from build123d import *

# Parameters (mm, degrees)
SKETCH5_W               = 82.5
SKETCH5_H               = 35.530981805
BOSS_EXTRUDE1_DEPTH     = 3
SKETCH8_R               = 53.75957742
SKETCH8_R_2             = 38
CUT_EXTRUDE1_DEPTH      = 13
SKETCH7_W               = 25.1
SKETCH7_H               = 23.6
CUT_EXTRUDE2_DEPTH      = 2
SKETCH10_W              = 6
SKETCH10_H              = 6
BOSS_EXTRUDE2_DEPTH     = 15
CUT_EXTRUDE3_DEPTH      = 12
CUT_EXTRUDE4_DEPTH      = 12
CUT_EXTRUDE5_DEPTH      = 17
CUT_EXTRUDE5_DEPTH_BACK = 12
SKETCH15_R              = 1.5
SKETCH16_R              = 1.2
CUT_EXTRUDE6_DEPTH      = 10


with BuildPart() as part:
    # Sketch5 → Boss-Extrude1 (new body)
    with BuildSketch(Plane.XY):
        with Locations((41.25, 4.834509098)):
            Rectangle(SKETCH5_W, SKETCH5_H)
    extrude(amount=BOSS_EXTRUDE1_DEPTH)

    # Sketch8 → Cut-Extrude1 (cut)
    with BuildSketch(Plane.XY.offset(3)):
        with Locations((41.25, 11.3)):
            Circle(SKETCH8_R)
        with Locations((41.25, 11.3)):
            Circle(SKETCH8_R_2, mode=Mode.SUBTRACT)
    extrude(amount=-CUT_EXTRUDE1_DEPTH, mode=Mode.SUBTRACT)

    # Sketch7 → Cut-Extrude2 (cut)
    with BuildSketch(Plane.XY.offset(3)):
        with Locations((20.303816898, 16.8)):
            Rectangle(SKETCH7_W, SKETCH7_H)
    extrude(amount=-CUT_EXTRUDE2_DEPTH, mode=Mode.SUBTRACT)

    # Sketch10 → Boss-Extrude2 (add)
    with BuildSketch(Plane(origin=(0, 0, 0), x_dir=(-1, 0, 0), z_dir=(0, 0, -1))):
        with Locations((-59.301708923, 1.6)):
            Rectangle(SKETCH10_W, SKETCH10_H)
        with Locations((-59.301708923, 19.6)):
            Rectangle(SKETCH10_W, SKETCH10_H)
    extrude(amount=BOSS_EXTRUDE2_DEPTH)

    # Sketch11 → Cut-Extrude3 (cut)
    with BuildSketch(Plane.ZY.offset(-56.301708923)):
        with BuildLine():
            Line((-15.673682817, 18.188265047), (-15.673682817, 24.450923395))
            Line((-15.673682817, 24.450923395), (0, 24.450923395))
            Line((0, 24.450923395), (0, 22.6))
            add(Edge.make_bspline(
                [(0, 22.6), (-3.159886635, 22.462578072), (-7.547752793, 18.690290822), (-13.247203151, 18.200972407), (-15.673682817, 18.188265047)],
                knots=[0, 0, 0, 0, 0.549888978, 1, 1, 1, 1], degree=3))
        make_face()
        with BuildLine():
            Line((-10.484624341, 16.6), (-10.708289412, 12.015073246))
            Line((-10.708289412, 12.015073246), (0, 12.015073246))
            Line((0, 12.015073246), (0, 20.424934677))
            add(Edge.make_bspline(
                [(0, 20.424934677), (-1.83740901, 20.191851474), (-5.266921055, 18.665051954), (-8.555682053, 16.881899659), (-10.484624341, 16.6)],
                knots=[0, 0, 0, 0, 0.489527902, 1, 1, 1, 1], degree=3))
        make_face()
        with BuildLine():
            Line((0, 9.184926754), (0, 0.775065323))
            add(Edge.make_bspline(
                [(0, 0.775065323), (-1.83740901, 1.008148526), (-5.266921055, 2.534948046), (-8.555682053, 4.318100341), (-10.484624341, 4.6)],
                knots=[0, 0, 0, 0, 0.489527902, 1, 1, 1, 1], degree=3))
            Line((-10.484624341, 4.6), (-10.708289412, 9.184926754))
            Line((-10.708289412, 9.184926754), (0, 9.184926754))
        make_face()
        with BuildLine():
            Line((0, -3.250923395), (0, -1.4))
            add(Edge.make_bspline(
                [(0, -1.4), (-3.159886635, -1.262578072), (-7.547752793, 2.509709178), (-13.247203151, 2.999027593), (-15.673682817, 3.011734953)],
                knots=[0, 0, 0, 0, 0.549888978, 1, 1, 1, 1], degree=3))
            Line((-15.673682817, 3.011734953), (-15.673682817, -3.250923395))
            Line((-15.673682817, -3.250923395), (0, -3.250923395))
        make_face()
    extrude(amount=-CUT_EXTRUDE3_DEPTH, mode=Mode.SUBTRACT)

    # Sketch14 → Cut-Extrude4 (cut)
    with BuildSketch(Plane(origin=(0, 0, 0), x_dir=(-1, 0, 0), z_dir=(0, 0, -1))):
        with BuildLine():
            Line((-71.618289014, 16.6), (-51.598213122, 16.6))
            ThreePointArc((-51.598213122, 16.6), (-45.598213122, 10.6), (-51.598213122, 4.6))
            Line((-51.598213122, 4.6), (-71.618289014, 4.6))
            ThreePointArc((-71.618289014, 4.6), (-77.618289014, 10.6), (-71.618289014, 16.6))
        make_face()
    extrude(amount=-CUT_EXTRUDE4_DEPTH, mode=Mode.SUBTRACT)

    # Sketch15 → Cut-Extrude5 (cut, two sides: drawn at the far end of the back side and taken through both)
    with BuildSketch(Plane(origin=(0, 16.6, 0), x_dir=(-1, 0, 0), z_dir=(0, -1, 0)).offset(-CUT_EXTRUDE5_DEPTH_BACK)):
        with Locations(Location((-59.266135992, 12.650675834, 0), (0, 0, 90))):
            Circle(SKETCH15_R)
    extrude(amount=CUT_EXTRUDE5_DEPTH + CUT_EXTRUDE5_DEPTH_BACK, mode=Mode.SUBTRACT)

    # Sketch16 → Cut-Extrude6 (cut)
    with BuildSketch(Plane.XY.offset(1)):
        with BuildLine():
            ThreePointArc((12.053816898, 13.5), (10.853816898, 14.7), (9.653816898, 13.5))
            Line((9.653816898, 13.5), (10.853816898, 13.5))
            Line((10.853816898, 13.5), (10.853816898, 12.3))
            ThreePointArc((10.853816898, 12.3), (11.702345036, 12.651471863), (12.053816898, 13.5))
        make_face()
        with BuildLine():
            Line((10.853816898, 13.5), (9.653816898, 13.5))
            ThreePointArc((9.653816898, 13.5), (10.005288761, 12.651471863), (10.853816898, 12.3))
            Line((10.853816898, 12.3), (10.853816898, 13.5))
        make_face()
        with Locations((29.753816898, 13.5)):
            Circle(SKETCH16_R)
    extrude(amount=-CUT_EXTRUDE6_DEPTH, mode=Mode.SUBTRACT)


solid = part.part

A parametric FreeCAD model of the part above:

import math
import FreeCAD as App
import Part
import Sketcher
Q = App.Units.Quantity


def add_polygon(sketch, points):
    """Adds a closed chain of lines whose ends are joined by coincident constraints."""
    first, n = sketch.GeometryCount, len(points)
    for a, b in zip(points, points[1:] + points[:1]):
        sketch.addGeometry(Part.LineSegment(App.Vector(*a, 0), App.Vector(*b, 0)), False)
    for i in range(n):
        sketch.addConstraint(Sketcher.Constraint("Coincident", first + i, 2, first + (i + 1) % n, 1))

doc = App.newDocument("Part")
body = doc.addObject("PartDesign::Body", "Body")

# Sketch on XY plane
sketch1 = body.newObject("Sketcher::SketchObject", "Sketch")
sketch1.AttachmentSupport = (doc.getObject("XY_Plane"), [""])
sketch1.MapMode = "FlatFace"
add_polygon(sketch1, [(0, 22.6), (0, -12.930982), (82.5, -12.930982), (82.5, 22.6)])  # lines 0-3
sketch1.addConstraint(Sketcher.Constraint("Vertical", 0))
sketch1.addConstraint(Sketcher.Constraint("Horizontal", 1))
sketch1.addConstraint(Sketcher.Constraint("Vertical", 2))
sketch1.addConstraint(Sketcher.Constraint("Horizontal", 3))
sketch1.addConstraint(Sketcher.Constraint("PointOnObject", 0, 2, -2))
sketch1.addConstraint(Sketcher.Constraint("DistanceX", 1, 1, 1, 2, Q("82.5 mm")))
sketch1.addConstraint(Sketcher.Constraint("DistanceY", -1, 1, 2, 2, Q("22.6 mm")))
sketch1.addConstraint(Sketcher.Constraint("DistanceY", 0, 2, 0, 1, Q("35.530982 mm")))
pad1 = body.newObject("PartDesign::Pad", "Pad")
pad1.Profile = sketch1
pad1.Length = 3

# Sketch on XY plane
sketch2 = body.newObject("Sketcher::SketchObject", "Sketch001")
sketch2.AttachmentSupport = (doc.getObject("XY_Plane"), [""])
sketch2.MapMode = "FlatFace"
sketch2.AttachmentOffset = App.Placement(App.Vector(0, 0, 3), App.Rotation())
sketch2.addGeometry(Part.Circle(App.Vector(41.25, 11.3, 0), App.Vector(0, 0, 1), 53.759577), False)
sketch2.addGeometry(Part.Circle(App.Vector(41.25, 11.3, 0), App.Vector(0, 0, 1), 38), False)
sketch2.addConstraint(Sketcher.Constraint("Coincident", 1, 3, 0, 3))
sketch2.addConstraint(Sketcher.Constraint("Diameter", 1, Q("76 mm")))
sketch2.addConstraint(Sketcher.Constraint("DistanceY", -1, 1, 0, 3, Q("11.3 mm")))
sketch2.addConstraint(Sketcher.Constraint("DistanceX", -1, 1, 0, 3, Q("41.25 mm")))
sketch2.addConstraint(Sketcher.Constraint("Diameter", 0, Q("107.519155 mm")))
pocket1 = body.newObject("PartDesign::Pocket", "Pocket")
pocket1.Profile = sketch2
pocket1.Length = 13

# Sketch on XY plane
sketch3 = body.newObject("Sketcher::SketchObject", "Sketch002")
sketch3.AttachmentSupport = (doc.getObject("XY_Plane"), [""])
sketch3.MapMode = "FlatFace"
sketch3.AttachmentOffset = App.Placement(App.Vector(0, 0, 3), App.Rotation())
add_polygon(sketch3, [(7.753817, 28.6), (7.753817, 5), (32.853817, 5), (32.853817, 28.6)])  # lines 0-3
sketch3.addConstraint(Sketcher.Constraint("Vertical", 0))
sketch3.addConstraint(Sketcher.Constraint("Horizontal", 1))
sketch3.addConstraint(Sketcher.Constraint("Vertical", 2))
sketch3.addConstraint(Sketcher.Constraint("Horizontal", 3))
sketch3.addConstraint(Sketcher.Constraint("DistanceX", 1, 1, 1, 2, Q("25.1 mm")))
sketch3.addConstraint(Sketcher.Constraint("DistanceY", 0, 2, 0, 1, Q("23.6 mm")))
sketch3.addConstraint(Sketcher.Constraint("DistanceY", -1, 1, 0, 2, Q("5 mm")))
sketch3.addConstraint(Sketcher.Constraint("DistanceX", -1, 1, 0, 2, Q("7.753817 mm")))
pocket2 = body.newObject("PartDesign::Pocket", "Pocket001")
pocket2.Profile = sketch3
pocket2.Length = 2

# Sketch on XY plane
sketch4 = body.newObject("Sketcher::SketchObject", "Sketch003")
sketch4.AttachmentSupport = (doc.getObject("XY_Plane"), [""])
sketch4.MapMode = "FlatFace"
add_polygon(sketch4, [(62.301709, 4.6), (62.301709, -1.4), (56.301709, -1.4), (56.301709, 4.6)])  # lines 0-3
add_polygon(sketch4, [(62.301709, 22.6), (62.301709, 16.6), (56.301709, 16.6), (56.301709, 22.6)])  # lines 4-7
sketch4.addConstraint(Sketcher.Constraint("Vertical", 0))
sketch4.addConstraint(Sketcher.Constraint("Horizontal", 1))
sketch4.addConstraint(Sketcher.Constraint("Vertical", 2))
sketch4.addConstraint(Sketcher.Constraint("Horizontal", 3))
sketch4.addConstraint(Sketcher.Constraint("Vertical", 4))
sketch4.addConstraint(Sketcher.Constraint("Horizontal", 5))
sketch4.addConstraint(Sketcher.Constraint("Vertical", 6))
sketch4.addConstraint(Sketcher.Constraint("Horizontal", 7))
sketch4.addConstraint(Sketcher.Constraint("Vertical", 3, 2, 4, 2))
sketch4.addConstraint(Sketcher.Constraint("Vertical", 2, 2, 5, 2))
sketch4.addConstraint(Sketcher.Constraint("Equal", 7, 0))
sketch4.addConstraint(Sketcher.Constraint("Equal", 2, 4))
sketch4.addConstraint(Sketcher.Constraint("DistanceX", 1, 2, 1, 1, Q("6 mm")))
sketch4.addConstraint(Sketcher.Constraint("DistanceY", 3, 2, 4, 2, Q("12 mm")))
sketch4.addConstraint(Sketcher.Constraint("DistanceY", 0, 2, -1, 1, Q("1.4 mm")))
sketch4.addConstraint(Sketcher.Constraint("DistanceX", -1, 1, 0, 2, Q("62.301709 mm")))
pad2 = body.newObject("PartDesign::Pad", "Pad001")
pad2.Profile = sketch4
pad2.Length = 15
pad2.Reversed = True

# Sketch on YZ plane
sketch5 = body.newObject("Sketcher::SketchObject", "Sketch004")
sketch5.AttachmentSupport = (doc.getObject("YZ_Plane"), [""])
sketch5.MapMode = "FlatFace"
sketch5.AttachmentOffset = App.Placement(App.Vector(0, 0, 56.301709), App.Rotation())
sketch5.addGeometry(Part.LineSegment(App.Vector(24.450923, -15.673683, 0), App.Vector(18.188265, -15.673683, 0)), False)
sketch5.addGeometry(Part.BSplineCurve([App.Vector(22.6, 0, 0), App.Vector(22.462578, -3.159887, 0), App.Vector(18.690291, -7.547753, 0), App.Vector(18.200972, -13.247203, 0), App.Vector(18.188265, -15.673683, 0)], [4, 1, 4], [0, 0.549888978, 1], False, 3, [1, 1, 1, 1, 1], False), False)
sketch5.addGeometry(Part.LineSegment(App.Vector(22.6, 0, 0), App.Vector(24.450923, 0, 0)), False)
sketch5.addGeometry(Part.LineSegment(App.Vector(24.450923, 0, 0), App.Vector(24.450923, -15.673683, 0)), False)
sketch5.addGeometry(Part.LineSegment(App.Vector(16.6, -10.484624, 0), App.Vector(12.015073, -10.708289, 0)), False)
sketch5.addGeometry(Part.LineSegment(App.Vector(12.015073, -10.708289, 0), App.Vector(12.015073, 0, 0)), False)
sketch5.addGeometry(Part.LineSegment(App.Vector(12.015073, 0, 0), App.Vector(20.424935, 0, 0)), False)
sketch5.addGeometry(Part.BSplineCurve([App.Vector(20.424935, 0, 0), App.Vector(20.191851, -1.837409, 0), App.Vector(18.665052, -5.266921, 0), App.Vector(16.8819, -8.555682, 0), App.Vector(16.6, -10.484624, 0)], [4, 1, 4], [0, 0.489527902, 1], False, 3, [1, 1, 1, 1, 1], False), False)
sketch5.addGeometry(Part.LineSegment(App.Vector(0.775065, 0, 0), App.Vector(9.184927, 0, 0)), False)
sketch5.addGeometry(Part.LineSegment(App.Vector(9.184927, 0, 0), App.Vector(9.184927, -10.708289, 0)), False)
sketch5.addGeometry(Part.LineSegment(App.Vector(9.184927, -10.708289, 0), App.Vector(4.6, -10.484624, 0)), False)
sketch5.addGeometry(Part.BSplineCurve([App.Vector(0.775065, 0, 0), App.Vector(1.008149, -1.837409, 0), App.Vector(2.534948, -5.266921, 0), App.Vector(4.3181, -8.555682, 0), App.Vector(4.6, -10.484624, 0)], [4, 1, 4], [0, 0.489527902, 1], False, 3, [1, 1, 1, 1, 1], False), False)
sketch5.addGeometry(Part.LineSegment(App.Vector(-3.250923, 0, 0), App.Vector(-1.4, 0, 0)), False)
sketch5.addGeometry(Part.BSplineCurve([App.Vector(-1.4, 0, 0), App.Vector(-1.262578, -3.159887, 0), App.Vector(2.509709, -7.547753, 0), App.Vector(2.999028, -13.247203, 0), App.Vector(3.011735, -15.673683, 0)], [4, 1, 4], [0, 0.549888978, 1], False, 3, [1, 1, 1, 1, 1], False), False)
sketch5.addGeometry(Part.LineSegment(App.Vector(3.011735, -15.673683, 0), App.Vector(-3.250923, -15.673683, 0)), False)
sketch5.addGeometry(Part.LineSegment(App.Vector(-3.250923, -15.673683, 0), App.Vector(-3.250923, 0, 0)), False)
sketch5.addConstraint(Sketcher.Constraint("Block", 1))
sketch5.addConstraint(Sketcher.Constraint("Block", 7))
sketch5.addConstraint(Sketcher.Constraint("Block", 11))
sketch5.addConstraint(Sketcher.Constraint("Block", 13))
sketch5.addConstraint(Sketcher.Constraint("Coincident", 0, 2, 1, 2))
sketch5.addConstraint(Sketcher.Constraint("Coincident", 1, 1, 2, 1))
sketch5.addConstraint(Sketcher.Constraint("Coincident", 2, 2, 3, 1))
sketch5.addConstraint(Sketcher.Constraint("Coincident", 3, 2, 0, 1))
sketch5.addConstraint(Sketcher.Constraint("Coincident", 4, 2, 5, 1))
sketch5.addConstraint(Sketcher.Constraint("Coincident", 5, 2, 6, 1))
sketch5.addConstraint(Sketcher.Constraint("Coincident", 6, 2, 7, 1))
sketch5.addConstraint(Sketcher.Constraint("Coincident", 7, 2, 4, 1))
sketch5.addConstraint(Sketcher.Constraint("Coincident", 8, 2, 9, 1))
sketch5.addConstraint(Sketcher.Constraint("Coincident", 9, 2, 10, 1))
sketch5.addConstraint(Sketcher.Constraint("Coincident", 10, 2, 11, 2))
sketch5.addConstraint(Sketcher.Constraint("Coincident", 11, 1, 8, 1))
sketch5.addConstraint(Sketcher.Constraint("Coincident", 12, 2, 13, 1))
sketch5.addConstraint(Sketcher.Constraint("Coincident", 13, 2, 14, 1))
sketch5.addConstraint(Sketcher.Constraint("Coincident", 14, 2, 15, 1))
sketch5.addConstraint(Sketcher.Constraint("Coincident", 15, 2, 12, 1))
sketch5.addConstraint(Sketcher.Constraint("Horizontal", 0))
sketch5.addConstraint(Sketcher.Constraint("Horizontal", 2))
sketch5.addConstraint(Sketcher.Constraint("Vertical", 3))
sketch5.addConstraint(Sketcher.Constraint("Vertical", 5))
sketch5.addConstraint(Sketcher.Constraint("Horizontal", 6))
sketch5.addConstraint(Sketcher.Constraint("Horizontal", 8))
sketch5.addConstraint(Sketcher.Constraint("Vertical", 9))
sketch5.addConstraint(Sketcher.Constraint("Horizontal", 12))
sketch5.addConstraint(Sketcher.Constraint("Horizontal", 14))
sketch5.addConstraint(Sketcher.Constraint("Vertical", 15))
sketch5.addConstraint(Sketcher.Constraint("Horizontal", 4, 2, 9, 2))
sketch5.addConstraint(Sketcher.Constraint("Equal", 6, 8))
sketch5.addConstraint(Sketcher.Constraint("Equal", 2, 12))
sketch5.addConstraint(Sketcher.Constraint("DistanceX", 0, 2, 0, 1, Q("6.262658 mm")))
sketch5.addConstraint(Sketcher.Constraint("DistanceX", 6, 1, 6, 2, Q("8.409861 mm")))
sketch5.addConstraint(Sketcher.Constraint("DistanceY", 5, 1, 5, 2, Q("10.708289 mm")))
pocket3 = body.newObject("PartDesign::Pocket", "Pocket002")
pocket3.Profile = sketch5
pocket3.Length = 12
pocket3.Reversed = True

# Sketch on XY plane
sketch6 = body.newObject("Sketcher::SketchObject", "Sketch005")
sketch6.AttachmentSupport = (doc.getObject("XY_Plane"), [""])
sketch6.MapMode = "FlatFace"
sketch6.addGeometry(Part.LineSegment(App.Vector(51.598213, 16.6, 0), App.Vector(71.618289, 16.6, 0)), False)
sketch6.addGeometry(Part.ArcOfCircle(Part.Circle(App.Vector(71.618289, 10.6, 0), App.Vector(0, 0, 1), 6), math.radians(-90), math.radians(90)), False)
sketch6.addGeometry(Part.LineSegment(App.Vector(71.618289, 4.6, 0), App.Vector(51.598213, 4.6, 0)), False)
sketch6.addGeometry(Part.ArcOfCircle(Part.Circle(App.Vector(51.598213, 10.6, 0), App.Vector(0, 0, 1), 6), math.radians(90), math.radians(270)), False)
sketch6.addConstraint(Sketcher.Constraint("Tangent", 0, 2, 1, 2))
sketch6.addConstraint(Sketcher.Constraint("Tangent", 1, 1, 2, 1))
sketch6.addConstraint(Sketcher.Constraint("Tangent", 2, 2, 3, 2))
sketch6.addConstraint(Sketcher.Constraint("Tangent", 3, 1, 0, 1))
sketch6.addConstraint(Sketcher.Constraint("Horizontal", 0))
sketch6.addConstraint(Sketcher.Constraint("Horizontal", 2))
sketch6.addConstraint(Sketcher.Constraint("Radius", 1, Q("6 mm")))
sketch6.addConstraint(Sketcher.Constraint("DistanceY", -1, 1, 1, 3, Q("10.6 mm")))
sketch6.addConstraint(Sketcher.Constraint("DistanceX", 0, 1, 0, 2, Q("20.020076 mm")))
sketch6.addConstraint(Sketcher.Constraint("DistanceX", -1, 1, 1, 3, Q("71.618289 mm")))
pocket4 = body.newObject("PartDesign::Pocket", "Pocket003")
pocket4.Profile = sketch6
pocket4.Length = 12
pocket4.Reversed = True

# Sketch on XZ plane
sketch7 = body.newObject("Sketcher::SketchObject", "Sketch006")
sketch7.AttachmentSupport = (doc.getObject("XZ_Plane"), [""])
sketch7.MapMode = "FlatFace"
sketch7.AttachmentOffset = App.Placement(App.Vector(0, 0, -16.6), App.Rotation())
sketch7.addGeometry(Part.Circle(App.Vector(59.266136, -12.650676, 0), App.Vector(0, 0, 1), 1.5), False)
sketch7.addConstraint(Sketcher.Constraint("Diameter", 0, Q("3 mm")))
sketch7.addConstraint(Sketcher.Constraint("DistanceX", -1, 1, 0, 3, Q("59.266136 mm")))
sketch7.addConstraint(Sketcher.Constraint("DistanceY", 0, 3, -1, 1, Q("12.650676 mm")))
pocket5 = body.newObject("PartDesign::Pocket", "Pocket004")
pocket5.Profile = sketch7
pocket5.Type = "ThroughAll"
pocket5.Midplane = True

# Sketch on XY plane
sketch8 = body.newObject("Sketcher::SketchObject", "Sketch007")
sketch8.AttachmentSupport = (doc.getObject("XY_Plane"), [""])
sketch8.MapMode = "FlatFace"
sketch8.AttachmentOffset = App.Placement(App.Vector(0, 0, 1), App.Rotation())
sketch8.addGeometry(Part.ArcOfCircle(Part.Circle(App.Vector(10.853817, 13.5, 0), App.Vector(0, 0, 1), 1.2), math.radians(0), math.radians(180)), False)
sketch8.addGeometry(Part.ArcOfCircle(Part.Circle(App.Vector(10.853817, 13.5, 0), App.Vector(0, 0, 1), 1.2), math.radians(-180), math.radians(-90)), False)
sketch8.addGeometry(Part.ArcOfCircle(Part.Circle(App.Vector(10.853817, 13.5, 0), App.Vector(0, 0, 1), 1.2), math.radians(-90), math.radians(0)), False)
sketch8.addGeometry(Part.Circle(App.Vector(29.753817, 13.5, 0), App.Vector(0, 0, 1), 1.2), False)
sketch8.addConstraint(Sketcher.Constraint("Tangent", 0, 2, 1, 1))
sketch8.addConstraint(Sketcher.Constraint("Tangent", 1, 2, 2, 1))
sketch8.addConstraint(Sketcher.Constraint("Tangent", 2, 2, 0, 1))
sketch8.addConstraint(Sketcher.Constraint("Equal", 2, 3))
sketch8.addConstraint(Sketcher.Constraint("Horizontal", 2, 3, 3, 3))
sketch8.addConstraint(Sketcher.Constraint("Horizontal", 3, 3, 0, 2))
sketch8.addConstraint(Sketcher.Constraint("Horizontal", 0, 2, 2, 2))
sketch8.addConstraint(Sketcher.Constraint("Vertical", 2, 3, 1, 2))
sketch8.addConstraint(Sketcher.Constraint("Diameter", 3, Q("2.4 mm")))
sketch8.addConstraint(Sketcher.Constraint("DistanceY", -1, 1, 0, 3, Q("13.5 mm")))
sketch8.addConstraint(Sketcher.Constraint("DistanceX", 1, 3, 3, 3, Q("18.9 mm")))
sketch8.addConstraint(Sketcher.Constraint("DistanceX", -1, 1, 0, 3, Q("10.853817 mm")))
pocket6 = body.newObject("PartDesign::Pocket", "Pocket005")
pocket6.Profile = sketch8
pocket6.Length = 10

doc.recompute()
